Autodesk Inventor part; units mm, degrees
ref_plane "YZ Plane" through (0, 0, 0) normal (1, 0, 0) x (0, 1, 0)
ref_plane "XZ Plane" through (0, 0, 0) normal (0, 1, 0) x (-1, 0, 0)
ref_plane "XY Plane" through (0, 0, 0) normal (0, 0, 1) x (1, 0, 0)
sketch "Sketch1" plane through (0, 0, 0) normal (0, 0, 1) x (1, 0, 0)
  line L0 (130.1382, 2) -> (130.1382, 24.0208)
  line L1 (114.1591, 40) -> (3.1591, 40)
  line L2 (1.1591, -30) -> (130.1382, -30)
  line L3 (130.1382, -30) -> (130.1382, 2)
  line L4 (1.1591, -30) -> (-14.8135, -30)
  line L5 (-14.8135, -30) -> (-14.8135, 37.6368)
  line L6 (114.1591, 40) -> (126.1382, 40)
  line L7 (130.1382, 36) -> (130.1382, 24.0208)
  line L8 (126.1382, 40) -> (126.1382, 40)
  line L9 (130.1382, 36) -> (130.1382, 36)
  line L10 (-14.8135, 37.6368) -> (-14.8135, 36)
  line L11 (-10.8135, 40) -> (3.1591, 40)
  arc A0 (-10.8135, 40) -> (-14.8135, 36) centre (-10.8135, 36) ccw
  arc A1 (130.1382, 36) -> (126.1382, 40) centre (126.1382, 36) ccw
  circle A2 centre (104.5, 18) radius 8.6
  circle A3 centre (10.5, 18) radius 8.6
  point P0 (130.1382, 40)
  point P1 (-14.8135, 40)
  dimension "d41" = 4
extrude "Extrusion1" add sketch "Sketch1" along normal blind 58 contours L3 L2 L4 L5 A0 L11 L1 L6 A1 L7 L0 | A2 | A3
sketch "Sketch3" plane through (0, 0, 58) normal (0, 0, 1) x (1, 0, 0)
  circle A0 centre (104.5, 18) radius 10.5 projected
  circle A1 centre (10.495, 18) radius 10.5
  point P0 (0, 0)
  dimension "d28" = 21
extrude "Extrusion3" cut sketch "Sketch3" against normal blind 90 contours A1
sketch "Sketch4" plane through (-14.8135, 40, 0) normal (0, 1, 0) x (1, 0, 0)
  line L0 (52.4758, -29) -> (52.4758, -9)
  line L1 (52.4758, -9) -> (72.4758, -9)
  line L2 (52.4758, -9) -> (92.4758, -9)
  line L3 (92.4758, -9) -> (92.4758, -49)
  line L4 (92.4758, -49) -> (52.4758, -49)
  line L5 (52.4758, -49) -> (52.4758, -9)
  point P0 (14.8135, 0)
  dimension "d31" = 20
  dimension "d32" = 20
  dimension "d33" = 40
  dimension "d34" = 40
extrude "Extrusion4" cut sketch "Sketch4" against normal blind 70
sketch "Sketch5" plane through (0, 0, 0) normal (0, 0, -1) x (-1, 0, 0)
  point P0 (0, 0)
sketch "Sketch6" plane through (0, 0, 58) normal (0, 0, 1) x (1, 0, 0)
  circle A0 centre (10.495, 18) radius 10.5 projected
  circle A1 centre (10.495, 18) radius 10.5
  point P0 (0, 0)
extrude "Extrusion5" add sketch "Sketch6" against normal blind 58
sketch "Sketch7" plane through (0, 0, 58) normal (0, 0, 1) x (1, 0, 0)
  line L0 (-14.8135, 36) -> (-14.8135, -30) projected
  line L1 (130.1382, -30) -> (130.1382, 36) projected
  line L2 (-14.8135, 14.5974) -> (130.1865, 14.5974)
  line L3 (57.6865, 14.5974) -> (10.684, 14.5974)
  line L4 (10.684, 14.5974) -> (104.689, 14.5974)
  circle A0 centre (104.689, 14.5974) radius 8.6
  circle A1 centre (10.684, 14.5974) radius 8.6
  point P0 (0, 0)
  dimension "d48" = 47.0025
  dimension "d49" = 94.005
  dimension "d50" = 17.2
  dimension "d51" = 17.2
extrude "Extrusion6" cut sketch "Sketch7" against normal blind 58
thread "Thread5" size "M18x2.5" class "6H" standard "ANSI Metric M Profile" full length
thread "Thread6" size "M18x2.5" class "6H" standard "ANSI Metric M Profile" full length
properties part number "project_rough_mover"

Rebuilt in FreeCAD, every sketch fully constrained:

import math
import FreeCAD as App
import Part
import Sketcher

V = App.Vector

doc = App.newDocument("Part")
body = doc.addObject("PartDesign::Body", "Body")

sketch1 = doc.addObject("Sketcher::SketchObject", "Sketch")
body.addObject(sketch1)
sketch1.AttachmentSupport = (doc.XY_Plane, [""])
sketch1.MapMode = "FlatFace"
sketch1.addGeometry([
    Part.LineSegment(V(130.1, -30, 0), V(130.1, 36, 0)),
    Part.ArcOfCircle(Part.Circle(V(126.1, 36, 0), V(0, 0, 1), 4), math.radians(0), math.radians(90)),
    Part.LineSegment(V(126.1, 40, 0), V(-10.8, 40, 0)),
    Part.ArcOfCircle(Part.Circle(V(-10.8, 36, 0), V(0, 0, 1), 4), math.radians(90), math.radians(180)),
    Part.LineSegment(V(-14.8, 36, 0), V(-14.8, -30, 0)),
    Part.LineSegment(V(-14.8, -30, 0), V(130.1, -30, 0)),
], False)
sketch1.addConstraint([
    Sketcher.Constraint("Tangent", 0, 2, 1, 1),
    Sketcher.Constraint("Tangent", 1, 2, 2, 1),
    Sketcher.Constraint("Tangent", 2, 2, 3, 1),
    Sketcher.Constraint("Tangent", 3, 2, 4, 1),
    Sketcher.Constraint("Coincident", 4, 2, 5, 1),
    Sketcher.Constraint("Coincident", 5, 2, 0, 1),
    Sketcher.Constraint("Vertical", 0),
    Sketcher.Constraint("Horizontal", 2),
    Sketcher.Constraint("Vertical", 4),
    Sketcher.Constraint("Horizontal", 5),
    Sketcher.Constraint("Equal", 1, 3),
    Sketcher.Constraint("Radius", 1, 4.0),
    Sketcher.Constraint("DistanceY", 0, 1, 0, 2, 66.0),
    Sketcher.Constraint("DistanceY", -1, 1, 1, 3, 36.0),
    Sketcher.Constraint("DistanceX", 2, 2, 2, 1, 136.9517),
    Sketcher.Constraint("DistanceX", -1, 1, 1, 3, 126.1382),
])
pad1 = doc.addObject("PartDesign::Pad", "Pad")
body.addObject(pad1)
pad1.Profile = sketch1
pad1.Length = 58

sketch2 = doc.addObject("Sketcher::SketchObject", "Sketch001")
body.addObject(sketch2)
sketch2.AttachmentSupport = (doc.XY_Plane, [""])
sketch2.MapMode = "FlatFace"
sketch2.AttachmentOffset = App.Placement(V(0, 0, 58), App.Rotation())
sketch2.addGeometry(Part.Circle(V(10, 18, 0), V(0, 0, 1), 10), False)
sketch2.addConstraint([
    Sketcher.Constraint("Diameter", 0, 21.0),
    Sketcher.Constraint("DistanceY", -1, 1, 0, 3, 18.0),
    Sketcher.Constraint("DistanceX", -1, 1, 0, 3, 10.495),
])
pocket1 = doc.addObject("PartDesign::Pocket", "Pocket")
body.addObject(pocket1)
pocket1.Profile = sketch2
pocket1.Length = 90

sketch3 = doc.addObject("Sketcher::SketchObject", "Sketch002")
body.addObject(sketch3)
sketch3.AttachmentSupport = (doc.XZ_Plane, [""])
sketch3.MapMode = "FlatFace"
sketch3.AttachmentOffset = App.Placement(V(0, 0, -40), App.Rotation())
sketch3.addGeometry([
    Part.LineSegment(V(38, 9, 0), V(38, 49, 0)),
    Part.LineSegment(V(38, 49, 0), V(78, 49, 0)),
    Part.LineSegment(V(78, 49, 0), V(78, 9, 0)),
    Part.LineSegment(V(78, 9, 0), V(38, 9, 0)),
], False)
sketch3.addConstraint([
    Sketcher.Constraint("Coincident", 0, 2, 1, 1),
    Sketcher.Constraint("Coincident", 1, 2, 2, 1),
    Sketcher.Constraint("Coincident", 2, 2, 3, 1),
    Sketcher.Constraint("Coincident", 3, 2, 0, 1),
    Sketcher.Constraint("Vertical", 0),
    Sketcher.Constraint("Horizontal", 1),
    Sketcher.Constraint("Vertical", 2),
    Sketcher.Constraint("Horizontal", 3),
    Sketcher.Constraint("Equal", 3, 0),
    Sketcher.Constraint("DistanceX", 1, 1, 1, 2, 40.0),
    Sketcher.Constraint("DistanceY", -1, 1, 0, 2, 49.0),
    Sketcher.Constraint("DistanceX", -1, 1, 0, 2, 37.6623),
])
pocket2 = doc.addObject("PartDesign::Pocket", "Pocket001")
body.addObject(pocket2)
pocket2.Profile = sketch3
pocket2.Length = 70
pocket2.Reversed = True

sketch4 = doc.addObject("Sketcher::SketchObject", "Sketch003")
body.addObject(sketch4)
sketch4.AttachmentSupport = (doc.XY_Plane, [""])
sketch4.MapMode = "FlatFace"
sketch4.AttachmentOffset = App.Placement(V(0, 0, 58), App.Rotation())
sketch4.addGeometry(Part.Circle(V(10, 18, 0), V(0, 0, 1), 10), False)
sketch4.addConstraint([
    Sketcher.Constraint("Diameter", 0, 21.0),
    Sketcher.Constraint("DistanceY", -1, 1, 0, 3, 18.0),
    Sketcher.Constraint("DistanceX", -1, 1, 0, 3, 10.495),
])
pad2 = doc.addObject("PartDesign::Pad", "Pad001")
body.addObject(pad2)
pad2.Profile = sketch4
pad2.Length = 58
pad2.Reversed = True

sketch5 = doc.addObject("Sketcher::SketchObject", "Sketch004")
body.addObject(sketch5)
sketch5.AttachmentSupport = (doc.XY_Plane, [""])
sketch5.MapMode = "FlatFace"
sketch5.AttachmentOffset = App.Placement(V(0, 0, 58), App.Rotation())
sketch5.addGeometry([
    Part.Circle(V(11, 15, 0), V(0, 0, 1), 9),
    Part.Circle(V(105, 15, 0), V(0, 0, 1), 9),
], False)
sketch5.addConstraint([
    Sketcher.Constraint("Equal", 0, 1),
    Sketcher.Constraint("Horizontal", 0, 3, 1, 3),
    Sketcher.Constraint("Diameter", 0, 17.2),
    Sketcher.Constraint("DistanceX", 0, 3, 1, 3, 94.005),
    Sketcher.Constraint("DistanceX", -1, 1, 0, 3, 10.684),
    Sketcher.Constraint("DistanceY", -1, 1, 0, 3, 14.5974),
])
pocket3 = doc.addObject("PartDesign::Pocket", "Pocket002")
body.addObject(pocket3)
pocket3.Profile = sketch5
pocket3.Length = 58

doc.recompute()
